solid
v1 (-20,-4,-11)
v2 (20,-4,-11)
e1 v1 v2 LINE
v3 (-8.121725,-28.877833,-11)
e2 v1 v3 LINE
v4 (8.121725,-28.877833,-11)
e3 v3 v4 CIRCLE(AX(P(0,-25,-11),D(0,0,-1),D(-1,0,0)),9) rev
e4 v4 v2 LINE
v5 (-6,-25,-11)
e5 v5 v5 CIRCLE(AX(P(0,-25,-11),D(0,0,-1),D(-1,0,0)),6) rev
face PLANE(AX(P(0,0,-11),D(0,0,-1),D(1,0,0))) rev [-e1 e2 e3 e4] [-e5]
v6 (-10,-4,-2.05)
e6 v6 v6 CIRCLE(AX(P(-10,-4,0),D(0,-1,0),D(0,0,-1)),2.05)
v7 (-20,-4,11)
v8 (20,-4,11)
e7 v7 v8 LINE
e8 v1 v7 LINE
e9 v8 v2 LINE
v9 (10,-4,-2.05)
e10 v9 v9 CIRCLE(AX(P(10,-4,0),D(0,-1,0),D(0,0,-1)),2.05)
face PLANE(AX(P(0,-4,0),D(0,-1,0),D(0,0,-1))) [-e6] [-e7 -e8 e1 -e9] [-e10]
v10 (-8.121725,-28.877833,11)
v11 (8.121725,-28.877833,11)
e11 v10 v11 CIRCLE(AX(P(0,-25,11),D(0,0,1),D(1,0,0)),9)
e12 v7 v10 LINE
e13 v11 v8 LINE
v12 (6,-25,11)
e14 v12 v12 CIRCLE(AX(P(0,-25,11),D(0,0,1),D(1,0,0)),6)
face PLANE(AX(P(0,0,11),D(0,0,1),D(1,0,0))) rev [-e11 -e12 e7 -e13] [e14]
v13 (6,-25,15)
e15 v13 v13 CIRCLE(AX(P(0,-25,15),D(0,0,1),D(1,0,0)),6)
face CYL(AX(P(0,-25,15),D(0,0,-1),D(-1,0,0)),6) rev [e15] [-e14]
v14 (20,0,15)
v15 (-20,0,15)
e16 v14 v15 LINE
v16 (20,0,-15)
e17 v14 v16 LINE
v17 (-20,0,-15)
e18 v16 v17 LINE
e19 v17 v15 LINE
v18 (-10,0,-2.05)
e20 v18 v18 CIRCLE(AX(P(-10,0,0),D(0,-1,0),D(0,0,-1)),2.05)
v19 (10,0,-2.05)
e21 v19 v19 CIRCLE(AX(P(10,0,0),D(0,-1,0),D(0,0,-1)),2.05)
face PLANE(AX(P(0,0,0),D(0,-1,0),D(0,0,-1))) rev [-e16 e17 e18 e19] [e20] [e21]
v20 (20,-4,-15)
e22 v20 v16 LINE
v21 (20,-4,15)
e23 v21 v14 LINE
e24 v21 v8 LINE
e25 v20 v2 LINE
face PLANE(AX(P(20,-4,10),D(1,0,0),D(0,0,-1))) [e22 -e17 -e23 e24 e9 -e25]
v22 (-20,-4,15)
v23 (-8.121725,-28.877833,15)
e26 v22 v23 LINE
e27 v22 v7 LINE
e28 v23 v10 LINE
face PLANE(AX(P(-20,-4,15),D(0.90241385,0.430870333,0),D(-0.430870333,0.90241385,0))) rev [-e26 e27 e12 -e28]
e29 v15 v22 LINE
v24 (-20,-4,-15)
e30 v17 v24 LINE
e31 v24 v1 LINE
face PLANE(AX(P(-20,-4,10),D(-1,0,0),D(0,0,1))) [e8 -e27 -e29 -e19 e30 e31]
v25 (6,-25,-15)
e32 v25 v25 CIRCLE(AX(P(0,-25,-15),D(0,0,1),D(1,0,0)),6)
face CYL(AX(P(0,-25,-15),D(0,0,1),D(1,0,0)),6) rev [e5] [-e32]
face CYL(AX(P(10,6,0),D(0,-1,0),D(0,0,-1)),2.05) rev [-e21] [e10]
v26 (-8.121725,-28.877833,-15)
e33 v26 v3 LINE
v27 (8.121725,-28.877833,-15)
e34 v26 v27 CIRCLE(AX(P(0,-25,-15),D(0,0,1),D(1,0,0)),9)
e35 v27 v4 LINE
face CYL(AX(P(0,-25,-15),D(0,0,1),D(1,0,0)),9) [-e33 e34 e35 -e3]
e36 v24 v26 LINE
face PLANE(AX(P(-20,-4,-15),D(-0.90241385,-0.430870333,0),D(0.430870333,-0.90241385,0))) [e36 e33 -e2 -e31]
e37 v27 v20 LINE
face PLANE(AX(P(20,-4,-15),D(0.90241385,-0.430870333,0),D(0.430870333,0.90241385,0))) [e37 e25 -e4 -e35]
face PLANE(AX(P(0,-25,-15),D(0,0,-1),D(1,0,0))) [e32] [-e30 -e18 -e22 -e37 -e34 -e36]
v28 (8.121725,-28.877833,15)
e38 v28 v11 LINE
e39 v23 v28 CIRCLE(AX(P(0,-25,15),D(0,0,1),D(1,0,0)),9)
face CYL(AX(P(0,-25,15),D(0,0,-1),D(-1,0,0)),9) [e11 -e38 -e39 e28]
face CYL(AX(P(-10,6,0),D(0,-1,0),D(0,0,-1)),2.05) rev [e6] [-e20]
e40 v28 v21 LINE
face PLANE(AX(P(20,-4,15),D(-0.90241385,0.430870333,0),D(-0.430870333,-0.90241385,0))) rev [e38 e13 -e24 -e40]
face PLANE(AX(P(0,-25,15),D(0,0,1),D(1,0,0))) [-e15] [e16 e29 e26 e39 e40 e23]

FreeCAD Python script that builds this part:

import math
import FreeCAD as App
import Part
import Sketcher
from FreeCAD import Vector


def add_polygon(sketch, points):
    """Adds a closed chain of lines whose ends are joined by coincident constraints."""
    first, n = sketch.GeometryCount, len(points)
    for a, b in zip(points, points[1:] + points[:1]):
        sketch.addGeometry(Part.LineSegment(App.Vector(*a, 0), App.Vector(*b, 0)), False)
    for i in range(n):
        sketch.addConstraint(Sketcher.Constraint("Coincident", first + i, 2, first + (i + 1) % n, 1))

doc = App.newDocument("Part")
params = doc.addObject("Spreadsheet::Sheet", "Params")
for row, (alias, value) in enumerate([
    ("sketch1_width", "40 mm"),
    ("sketch1_height", "20 mm"),
    ("pad1_length", "4 mm"),
    ("sketch2_diameter", "12 mm"),
    ("sketch2_radius", "9 mm"),
    ("sketch2_width", "40 mm"),
    ("sketch2_height", "4 mm"),
    ("pad2_length", "5 mm"),
    ("sketch3_width", "40 mm"),
    ("sketch3_height", "35 mm"),
    ("pocket1_length", "1 mm"),
    ("sketch4_diameter", "4.1 mm"),
    ("pocket2_length", "10 mm"),
], start=1):
    params.set(f"A{row}", alias)
    params.set(f"B{row}", "=" + value)
    params.setAlias(f"B{row}", alias)

body = doc.addObject("PartDesign::Body", "Body")

sketch1 = body.newObject("Sketcher::SketchObject", "Sketch")
sketch1.AttachmentSupport = (doc.getObject("XZ_Plane"), [""])
sketch1.MapMode = "FlatFace"
add_polygon(sketch1, [(-20, -10), (-20, 10), (20, 10), (20, -10)])
sketch1.addConstraint(Sketcher.Constraint("Vertical", 0))
sketch1.addConstraint(Sketcher.Constraint("Horizontal", 1))
sketch1.addConstraint(Sketcher.Constraint("Vertical", 2))
sketch1.addConstraint(Sketcher.Constraint("Horizontal", 3))
sketch1.addConstraint(Sketcher.Constraint("Symmetric", 0, 2, 2, 2, -1, 1))
sketch1.addConstraint(Sketcher.Constraint("DistanceX", 1, 1, 1, 2, 40.0))
sketch1.addConstraint(Sketcher.Constraint("DistanceY", 0, 1, 0, 2, 20.0))
sketch1.setExpression("Constraints[9]", "Params.sketch1_width")
sketch1.setExpression("Constraints[10]", "Params.sketch1_height")
pad1 = body.newObject("PartDesign::Pad", "Pad")
pad1.Profile = sketch1
pad1.setExpression("Length", "Params.pad1_length")

sketch2 = body.newObject("Sketcher::SketchObject", "Sketch001")
sketch2.AttachmentSupport = (doc.getObject("XY_Plane"), [""])
sketch2.MapMode = "FlatFace"
sketch2.AttachmentOffset = App.Placement(Vector(0, 0, 10), App.Rotation())
sketch2.addGeometry(Part.LineSegment(Vector(20, -4, 0), Vector(20, 0, 0)), False)
sketch2.addGeometry(Part.LineSegment(Vector(20, 0, 0), Vector(-20, 0, 0)), False)
sketch2.addGeometry(Part.LineSegment(Vector(-20, 0, 0), Vector(-20, -4, 0)), False)
sketch2.addGeometry(Part.LineSegment(Vector(-20, -4, 0), Vector(-8.121725, -28.877833, 0)), False)
sketch2.addGeometry(Part.ArcOfCircle(Part.Circle(Vector(0, -25, 0), Vector(0, 0, 1), 9), math.radians(-154.477194), math.radians(-25.522806)), False)
sketch2.addGeometry(Part.LineSegment(Vector(8.121725, -28.877833, 0), Vector(20, -4, 0)), False)
sketch2.addGeometry(Part.Circle(Vector(0, -25, 0), Vector(0, 0, 1), 6), False)
sketch2.addConstraint(Sketcher.Constraint("Coincident", 0, 2, 1, 1))
sketch2.addConstraint(Sketcher.Constraint("Coincident", 1, 2, 2, 1))
sketch2.addConstraint(Sketcher.Constraint("Coincident", 2, 2, 3, 1))
sketch2.addConstraint(Sketcher.Constraint("Tangent", 3, 2, 4, 1))
sketch2.addConstraint(Sketcher.Constraint("Tangent", 4, 2, 5, 1))
sketch2.addConstraint(Sketcher.Constraint("Coincident", 5, 2, 0, 1))
sketch2.addConstraint(Sketcher.Constraint("Vertical", 0))
sketch2.addConstraint(Sketcher.Constraint("Horizontal", 1))
sketch2.addConstraint(Sketcher.Constraint("Vertical", 2))
sketch2.addConstraint(Sketcher.Constraint("Coincident", 6, 3, 4, 3))
sketch2.addConstraint(Sketcher.Constraint("Symmetric", 0, 2, 1, 2, -1, 1))
sketch2.addConstraint(Sketcher.Constraint("Symmetric", 3, 2, 4, 2, -2))
sketch2.addConstraint(Sketcher.Constraint("Diameter", 6, 12.0))
sketch2.addConstraint(Sketcher.Constraint("Radius", 4, 9.0))
sketch2.addConstraint(Sketcher.Constraint("DistanceX", 1, 2, 1, 1, 40.0))
sketch2.addConstraint(Sketcher.Constraint("DistanceY", 0, 1, 0, 2, 4.0))
sketch2.addConstraint(Sketcher.Constraint("DistanceY", 4, 3, -1, 1, 25.0))
sketch2.setExpression("Constraints[12]", "Params.sketch2_diameter")
sketch2.setExpression("Constraints[13]", "Params.sketch2_radius")
sketch2.setExpression("Constraints[14]", "Params.sketch2_width")
sketch2.setExpression("Constraints[15]", "Params.sketch2_height")
pad2 = body.newObject("PartDesign::Pad", "Pad001")
pad2.Profile = sketch2
pad2.setExpression("Length", "Params.pad2_length")

sketch3 = body.newObject("Sketcher::SketchObject", "Sketch002")
sketch3.AttachmentSupport = (doc.getObject("XY_Plane"), [""])
sketch3.MapMode = "FlatFace"
sketch3.AttachmentOffset = App.Placement(Vector(0, 0, 10), App.Rotation())
add_polygon(sketch3, [(20, -4), (20, -39), (-20, -39), (-20, -4)])
sketch3.addConstraint(Sketcher.Constraint("Vertical", 0))
sketch3.addConstraint(Sketcher.Constraint("Horizontal", 1))
sketch3.addConstraint(Sketcher.Constraint("Vertical", 2))
sketch3.addConstraint(Sketcher.Constraint("Horizontal", 3))
sketch3.addConstraint(Sketcher.Constraint("DistanceX", 1, 2, 1, 1, 40.0))
sketch3.addConstraint(Sketcher.Constraint("DistanceY", 0, 2, 0, 1, 35.0))
sketch3.addConstraint(Sketcher.Constraint("DistanceX", -1, 1, 0, 2, 20.0))
sketch3.addConstraint(Sketcher.Constraint("DistanceY", 0, 2, -1, 1, 39.0))
sketch3.setExpression("Constraints[8]", "Params.sketch3_width")
sketch3.setExpression("Constraints[9]", "Params.sketch3_height")
pocket1 = body.newObject("PartDesign::Pocket", "Pocket")
pocket1.Profile = sketch3
pocket1.setExpression("Length", "Params.pocket1_length")
pocket1.Reversed = True
doc.recompute()

mirrored = body.newObject("PartDesign::Mirrored", "Mirrored")
mirrored.Originals = [pad2, pocket1]
mirrored.MirrorPlane = (doc.getObject("XY_Plane"), [""])
body.Tip = mirrored

sketch4 = body.newObject("Sketcher::SketchObject", "Sketch003")
sketch4.AttachmentSupport = (doc.getObject("XZ_Plane"), [""])
sketch4.MapMode = "FlatFace"
sketch4.AttachmentOffset = App.Placement(Vector(0, 0, 4), App.Rotation())
sketch4.addGeometry(Part.Circle(Vector(-10, 0, 0), Vector(0, 0, 1), 2.05), False)
sketch4.addGeometry(Part.Circle(Vector(10, 0, 0), Vector(0, 0, 1), 2.05), False)
sketch4.addConstraint(Sketcher.Constraint("Equal", 0, 1))
sketch4.addConstraint(Sketcher.Constraint("Symmetric", 0, 3, 1, 3, -1, 1))
sketch4.addConstraint(Sketcher.Constraint("PointOnObject", 0, 3, -1))
sketch4.addConstraint(Sketcher.Constraint("Diameter", 0, 4.1))
sketch4.addConstraint(Sketcher.Constraint("DistanceX", 0, 3, -1, 1, 10.0))
sketch4.setExpression("Constraints[3]", "Params.sketch4_diameter")
pocket2 = body.newObject("PartDesign::Pocket", "Pocket001")
pocket2.Profile = sketch4
pocket2.setExpression("Length", "Params.pocket2_length")

doc.recompute()
